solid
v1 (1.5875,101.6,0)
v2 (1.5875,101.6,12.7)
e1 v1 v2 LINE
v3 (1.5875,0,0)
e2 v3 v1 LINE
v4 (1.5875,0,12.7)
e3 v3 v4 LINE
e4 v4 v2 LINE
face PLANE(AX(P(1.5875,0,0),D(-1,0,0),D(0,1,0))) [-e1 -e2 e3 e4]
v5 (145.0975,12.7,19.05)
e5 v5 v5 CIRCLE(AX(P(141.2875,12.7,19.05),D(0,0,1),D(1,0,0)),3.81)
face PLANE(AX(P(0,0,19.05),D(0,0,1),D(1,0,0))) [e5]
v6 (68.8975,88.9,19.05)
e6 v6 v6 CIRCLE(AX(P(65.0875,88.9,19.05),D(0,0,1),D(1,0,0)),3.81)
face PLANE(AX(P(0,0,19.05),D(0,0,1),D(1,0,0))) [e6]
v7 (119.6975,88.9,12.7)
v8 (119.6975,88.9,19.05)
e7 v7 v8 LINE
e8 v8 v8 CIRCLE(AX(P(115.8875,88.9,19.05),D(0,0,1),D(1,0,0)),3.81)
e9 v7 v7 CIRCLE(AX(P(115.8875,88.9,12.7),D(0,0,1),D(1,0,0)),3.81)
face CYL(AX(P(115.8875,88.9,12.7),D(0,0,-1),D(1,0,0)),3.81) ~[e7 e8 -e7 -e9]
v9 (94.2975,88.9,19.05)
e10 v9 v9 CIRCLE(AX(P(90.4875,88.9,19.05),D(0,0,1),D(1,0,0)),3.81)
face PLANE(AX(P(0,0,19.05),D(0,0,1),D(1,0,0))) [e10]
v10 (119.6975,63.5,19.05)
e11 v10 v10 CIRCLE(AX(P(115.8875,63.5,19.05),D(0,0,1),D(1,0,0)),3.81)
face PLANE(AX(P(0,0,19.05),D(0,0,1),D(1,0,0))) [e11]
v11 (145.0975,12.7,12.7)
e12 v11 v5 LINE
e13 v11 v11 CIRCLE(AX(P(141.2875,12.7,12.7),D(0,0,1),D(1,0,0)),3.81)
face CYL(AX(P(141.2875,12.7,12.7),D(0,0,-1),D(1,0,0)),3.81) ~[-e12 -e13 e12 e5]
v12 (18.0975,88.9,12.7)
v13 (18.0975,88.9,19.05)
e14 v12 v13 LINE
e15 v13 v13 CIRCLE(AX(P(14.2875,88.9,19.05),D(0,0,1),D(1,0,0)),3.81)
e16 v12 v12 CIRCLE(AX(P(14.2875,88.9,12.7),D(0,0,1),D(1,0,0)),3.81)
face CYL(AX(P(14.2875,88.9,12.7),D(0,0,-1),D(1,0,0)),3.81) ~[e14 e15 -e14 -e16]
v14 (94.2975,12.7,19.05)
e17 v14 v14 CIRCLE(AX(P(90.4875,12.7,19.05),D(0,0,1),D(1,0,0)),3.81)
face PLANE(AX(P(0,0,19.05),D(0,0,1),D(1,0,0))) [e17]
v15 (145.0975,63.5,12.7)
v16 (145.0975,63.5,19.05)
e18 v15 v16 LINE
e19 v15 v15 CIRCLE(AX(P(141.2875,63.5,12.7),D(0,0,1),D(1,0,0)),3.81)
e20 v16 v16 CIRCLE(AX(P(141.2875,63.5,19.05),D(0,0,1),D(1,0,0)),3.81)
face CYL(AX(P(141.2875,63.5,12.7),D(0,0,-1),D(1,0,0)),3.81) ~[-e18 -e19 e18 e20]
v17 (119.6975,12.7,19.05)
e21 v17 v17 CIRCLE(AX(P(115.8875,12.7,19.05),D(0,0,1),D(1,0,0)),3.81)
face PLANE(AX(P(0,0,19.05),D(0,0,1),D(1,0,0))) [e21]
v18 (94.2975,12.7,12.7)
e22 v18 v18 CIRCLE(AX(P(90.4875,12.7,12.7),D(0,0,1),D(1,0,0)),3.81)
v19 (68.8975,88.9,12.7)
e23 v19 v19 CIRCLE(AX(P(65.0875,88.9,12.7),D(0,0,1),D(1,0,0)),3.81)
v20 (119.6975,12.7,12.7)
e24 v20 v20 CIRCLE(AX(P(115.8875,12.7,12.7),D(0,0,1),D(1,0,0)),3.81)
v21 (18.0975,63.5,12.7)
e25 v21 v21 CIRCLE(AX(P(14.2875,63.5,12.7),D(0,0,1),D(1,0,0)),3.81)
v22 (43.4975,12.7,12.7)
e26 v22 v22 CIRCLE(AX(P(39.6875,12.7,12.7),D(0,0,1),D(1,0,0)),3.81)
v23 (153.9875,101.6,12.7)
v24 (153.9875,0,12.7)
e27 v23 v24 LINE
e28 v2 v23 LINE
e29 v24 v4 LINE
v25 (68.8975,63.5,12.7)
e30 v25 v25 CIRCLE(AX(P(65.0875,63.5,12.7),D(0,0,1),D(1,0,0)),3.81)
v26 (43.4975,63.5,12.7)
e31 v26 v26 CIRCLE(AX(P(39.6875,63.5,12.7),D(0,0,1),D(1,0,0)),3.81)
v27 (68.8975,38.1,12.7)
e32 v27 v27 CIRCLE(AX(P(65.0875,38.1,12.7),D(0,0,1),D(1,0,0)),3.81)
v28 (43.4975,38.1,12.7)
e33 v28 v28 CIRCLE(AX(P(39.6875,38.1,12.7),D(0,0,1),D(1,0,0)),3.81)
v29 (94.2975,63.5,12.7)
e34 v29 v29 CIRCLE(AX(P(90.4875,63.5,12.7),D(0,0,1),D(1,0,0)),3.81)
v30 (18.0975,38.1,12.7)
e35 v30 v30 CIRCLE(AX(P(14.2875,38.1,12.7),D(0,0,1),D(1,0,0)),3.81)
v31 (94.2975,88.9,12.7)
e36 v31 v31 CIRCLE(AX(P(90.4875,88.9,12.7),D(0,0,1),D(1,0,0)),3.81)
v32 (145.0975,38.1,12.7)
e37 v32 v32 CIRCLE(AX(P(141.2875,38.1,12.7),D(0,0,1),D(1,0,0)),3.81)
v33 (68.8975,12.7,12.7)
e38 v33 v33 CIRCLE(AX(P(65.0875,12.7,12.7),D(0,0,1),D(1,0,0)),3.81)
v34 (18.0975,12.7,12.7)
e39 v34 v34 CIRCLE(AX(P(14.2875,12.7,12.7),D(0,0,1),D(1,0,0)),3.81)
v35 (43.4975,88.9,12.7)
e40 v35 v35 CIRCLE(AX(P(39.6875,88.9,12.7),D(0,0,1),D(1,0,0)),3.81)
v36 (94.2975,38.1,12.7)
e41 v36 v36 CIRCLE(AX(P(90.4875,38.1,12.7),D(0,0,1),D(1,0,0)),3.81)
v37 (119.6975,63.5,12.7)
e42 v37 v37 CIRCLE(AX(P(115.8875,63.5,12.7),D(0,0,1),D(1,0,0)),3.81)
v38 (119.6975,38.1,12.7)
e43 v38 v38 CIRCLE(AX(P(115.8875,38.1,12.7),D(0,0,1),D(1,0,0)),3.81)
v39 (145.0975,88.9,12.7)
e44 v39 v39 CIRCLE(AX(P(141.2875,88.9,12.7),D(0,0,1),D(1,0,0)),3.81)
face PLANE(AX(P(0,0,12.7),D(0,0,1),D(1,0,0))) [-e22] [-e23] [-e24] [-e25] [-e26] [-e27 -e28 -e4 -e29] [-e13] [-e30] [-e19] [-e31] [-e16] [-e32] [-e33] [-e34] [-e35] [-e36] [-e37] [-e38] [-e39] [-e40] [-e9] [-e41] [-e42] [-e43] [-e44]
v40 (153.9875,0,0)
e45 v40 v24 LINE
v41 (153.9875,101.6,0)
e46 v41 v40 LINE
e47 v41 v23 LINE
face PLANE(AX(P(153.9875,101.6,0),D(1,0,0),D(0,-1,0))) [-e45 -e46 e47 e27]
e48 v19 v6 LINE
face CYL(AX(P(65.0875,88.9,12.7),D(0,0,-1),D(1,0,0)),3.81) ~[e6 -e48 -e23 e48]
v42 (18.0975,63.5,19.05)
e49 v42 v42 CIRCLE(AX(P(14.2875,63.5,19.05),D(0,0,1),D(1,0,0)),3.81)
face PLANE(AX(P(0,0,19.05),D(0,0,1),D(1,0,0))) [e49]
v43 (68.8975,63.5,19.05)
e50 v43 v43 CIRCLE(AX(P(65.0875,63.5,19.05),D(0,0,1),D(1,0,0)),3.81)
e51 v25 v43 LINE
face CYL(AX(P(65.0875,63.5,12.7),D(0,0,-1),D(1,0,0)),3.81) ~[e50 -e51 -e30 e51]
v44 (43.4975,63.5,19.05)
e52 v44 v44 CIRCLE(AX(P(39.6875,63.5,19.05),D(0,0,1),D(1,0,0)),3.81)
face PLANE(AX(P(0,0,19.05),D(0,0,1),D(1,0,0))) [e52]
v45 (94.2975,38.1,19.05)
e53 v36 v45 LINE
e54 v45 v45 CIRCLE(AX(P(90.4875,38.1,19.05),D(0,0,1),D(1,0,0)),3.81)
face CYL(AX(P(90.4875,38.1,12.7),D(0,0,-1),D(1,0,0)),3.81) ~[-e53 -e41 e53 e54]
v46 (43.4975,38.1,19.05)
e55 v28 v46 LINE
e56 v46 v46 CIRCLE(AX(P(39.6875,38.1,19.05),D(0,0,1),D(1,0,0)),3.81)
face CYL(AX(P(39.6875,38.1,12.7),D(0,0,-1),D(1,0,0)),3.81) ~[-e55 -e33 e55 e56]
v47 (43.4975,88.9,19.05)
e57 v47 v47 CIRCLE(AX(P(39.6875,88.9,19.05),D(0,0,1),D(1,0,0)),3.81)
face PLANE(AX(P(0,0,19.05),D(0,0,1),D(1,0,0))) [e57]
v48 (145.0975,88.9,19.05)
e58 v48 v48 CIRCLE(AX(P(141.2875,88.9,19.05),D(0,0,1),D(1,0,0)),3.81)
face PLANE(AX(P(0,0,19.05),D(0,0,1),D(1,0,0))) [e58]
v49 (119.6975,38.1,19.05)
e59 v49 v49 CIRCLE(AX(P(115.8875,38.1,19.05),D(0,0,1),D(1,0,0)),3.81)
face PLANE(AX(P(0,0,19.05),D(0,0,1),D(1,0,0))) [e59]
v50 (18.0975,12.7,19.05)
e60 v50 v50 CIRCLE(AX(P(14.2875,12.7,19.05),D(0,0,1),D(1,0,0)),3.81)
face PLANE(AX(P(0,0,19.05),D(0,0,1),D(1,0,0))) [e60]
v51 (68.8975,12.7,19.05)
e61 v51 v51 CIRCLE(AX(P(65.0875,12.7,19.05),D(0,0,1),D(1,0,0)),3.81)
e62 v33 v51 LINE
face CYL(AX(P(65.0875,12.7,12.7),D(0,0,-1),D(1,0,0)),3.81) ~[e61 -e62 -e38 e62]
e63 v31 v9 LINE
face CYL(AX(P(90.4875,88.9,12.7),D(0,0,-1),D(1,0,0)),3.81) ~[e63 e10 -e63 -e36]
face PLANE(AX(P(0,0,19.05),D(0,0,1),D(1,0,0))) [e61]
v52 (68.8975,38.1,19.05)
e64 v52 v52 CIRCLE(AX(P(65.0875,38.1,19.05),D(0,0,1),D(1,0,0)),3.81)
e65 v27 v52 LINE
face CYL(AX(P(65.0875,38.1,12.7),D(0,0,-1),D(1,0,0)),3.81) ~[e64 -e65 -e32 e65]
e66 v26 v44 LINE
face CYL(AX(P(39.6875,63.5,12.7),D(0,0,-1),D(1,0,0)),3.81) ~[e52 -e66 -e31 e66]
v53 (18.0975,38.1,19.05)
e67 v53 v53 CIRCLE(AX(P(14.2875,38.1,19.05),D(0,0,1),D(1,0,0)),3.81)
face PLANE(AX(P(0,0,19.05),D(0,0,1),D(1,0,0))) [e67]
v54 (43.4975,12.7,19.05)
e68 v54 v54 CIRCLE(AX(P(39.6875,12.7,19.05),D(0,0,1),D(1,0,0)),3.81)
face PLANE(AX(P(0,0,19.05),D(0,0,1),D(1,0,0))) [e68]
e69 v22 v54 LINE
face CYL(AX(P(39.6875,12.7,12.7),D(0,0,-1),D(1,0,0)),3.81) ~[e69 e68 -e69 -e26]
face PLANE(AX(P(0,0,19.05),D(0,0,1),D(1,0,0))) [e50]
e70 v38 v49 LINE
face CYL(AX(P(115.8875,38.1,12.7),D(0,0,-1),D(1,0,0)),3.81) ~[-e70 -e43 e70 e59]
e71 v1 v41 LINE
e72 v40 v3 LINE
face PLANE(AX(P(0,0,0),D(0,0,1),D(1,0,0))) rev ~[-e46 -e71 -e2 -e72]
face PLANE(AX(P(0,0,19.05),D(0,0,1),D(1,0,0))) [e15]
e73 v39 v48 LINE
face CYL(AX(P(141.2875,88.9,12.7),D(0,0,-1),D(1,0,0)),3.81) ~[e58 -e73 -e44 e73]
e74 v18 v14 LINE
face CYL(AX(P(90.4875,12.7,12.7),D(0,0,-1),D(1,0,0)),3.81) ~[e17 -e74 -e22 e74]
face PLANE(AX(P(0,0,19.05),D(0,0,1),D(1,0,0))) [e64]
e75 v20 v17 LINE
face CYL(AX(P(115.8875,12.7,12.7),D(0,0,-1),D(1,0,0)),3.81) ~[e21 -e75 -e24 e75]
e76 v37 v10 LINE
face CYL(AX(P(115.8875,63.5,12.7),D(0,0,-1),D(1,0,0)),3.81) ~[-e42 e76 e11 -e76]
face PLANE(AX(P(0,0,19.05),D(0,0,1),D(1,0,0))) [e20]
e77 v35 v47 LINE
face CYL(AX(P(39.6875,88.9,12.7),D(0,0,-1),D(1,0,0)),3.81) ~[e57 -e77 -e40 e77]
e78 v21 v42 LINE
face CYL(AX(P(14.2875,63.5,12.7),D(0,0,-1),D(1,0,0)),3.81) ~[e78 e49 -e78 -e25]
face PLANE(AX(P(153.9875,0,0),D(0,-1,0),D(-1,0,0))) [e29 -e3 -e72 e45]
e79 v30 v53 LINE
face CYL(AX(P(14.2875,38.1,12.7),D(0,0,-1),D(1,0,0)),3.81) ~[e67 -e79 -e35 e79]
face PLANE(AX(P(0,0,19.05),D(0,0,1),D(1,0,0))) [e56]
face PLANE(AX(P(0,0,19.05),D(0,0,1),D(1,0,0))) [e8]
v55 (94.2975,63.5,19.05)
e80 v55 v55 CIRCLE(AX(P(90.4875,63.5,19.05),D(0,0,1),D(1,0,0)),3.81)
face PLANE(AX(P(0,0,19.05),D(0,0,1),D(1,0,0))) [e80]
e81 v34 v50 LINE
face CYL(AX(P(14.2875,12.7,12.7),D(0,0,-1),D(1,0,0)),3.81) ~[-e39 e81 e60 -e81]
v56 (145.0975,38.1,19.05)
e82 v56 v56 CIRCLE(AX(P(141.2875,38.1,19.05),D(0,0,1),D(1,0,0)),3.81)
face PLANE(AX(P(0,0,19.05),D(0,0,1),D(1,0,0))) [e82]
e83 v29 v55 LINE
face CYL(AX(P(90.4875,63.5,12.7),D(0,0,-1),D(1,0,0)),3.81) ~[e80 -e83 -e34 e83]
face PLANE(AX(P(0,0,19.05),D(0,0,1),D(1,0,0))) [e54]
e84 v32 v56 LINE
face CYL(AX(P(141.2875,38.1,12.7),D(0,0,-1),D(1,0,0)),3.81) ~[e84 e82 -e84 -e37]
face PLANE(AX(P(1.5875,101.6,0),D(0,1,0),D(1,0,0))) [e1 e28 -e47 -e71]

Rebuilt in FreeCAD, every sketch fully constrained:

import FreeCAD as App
import Part
import Sketcher
Q = App.Units.Quantity

doc = App.newDocument("Part")
params = doc.addObject("Spreadsheet::Sheet", "Params")
for row, (alias, value) in enumerate([
    ("sketch1_width", "6 in"),
    ("sketch1_height", "4 in"),
    ("pad1_length", "0.5 in"),
    ("sketch2_diameter", "0.3 in"),
    ("pad2_length", "0.25 in"),
], start=1):
    params.set(f"A{row}", alias)
    params.set(f"B{row}", "=" + value)
    params.setAlias(f"B{row}", alias)

body = doc.addObject("PartDesign::Body", "Body")

# Sketch on XY plane
sketch1 = body.newObject("Sketcher::SketchObject", "Sketch")
sketch1.AttachmentSupport = (doc.getObject("XY_Plane"), [""])
sketch1.MapMode = "FlatFace"
sketch1.addGeometry([
    Part.LineSegment(App.Vector(154, 102, 0), App.Vector(2, 102, 0)),
    Part.LineSegment(App.Vector(2, 102, 0), App.Vector(2, 0, 0)),
    Part.LineSegment(App.Vector(2, 0, 0), App.Vector(154, 0, 0)),
    Part.LineSegment(App.Vector(154, 0, 0), App.Vector(154, 102, 0)),
], False)
sketch1.addConstraint([
    Sketcher.Constraint("Coincident", 0, 2, 1, 1),
    Sketcher.Constraint("Coincident", 1, 2, 2, 1),
    Sketcher.Constraint("Coincident", 2, 2, 3, 1),
    Sketcher.Constraint("Coincident", 3, 2, 0, 1),
    Sketcher.Constraint("Horizontal", 0),
    Sketcher.Constraint("Vertical", 1),
    Sketcher.Constraint("Horizontal", 2),
    Sketcher.Constraint("Vertical", 3),
    Sketcher.Constraint("PointOnObject", 1, 2, -1),
    Sketcher.Constraint("DistanceX", 0, 2, 0, 1, Q("6 in")),
    Sketcher.Constraint("DistanceY", 1, 2, 1, 1, Q("4 in")),
    Sketcher.Constraint("DistanceX", -1, 1, 0, 2, Q("0.0625 in")),
])
sketch1.setExpression("Constraints[9]", "Params.sketch1_width")
sketch1.setExpression("Constraints[10]", "Params.sketch1_height")
pad1 = body.newObject("PartDesign::Pad", "Pad")
pad1.Profile = sketch1
pad1.setExpression("Length", "Params.pad1_length")

# Sketch on XY plane
sketch2 = body.newObject("Sketcher::SketchObject", "Sketch001")
sketch2.AttachmentSupport = (doc.getObject("XY_Plane"), [""])
sketch2.MapMode = "FlatFace"
sketch2.AttachmentOffset = App.Placement(App.Vector(0, 0, 0.5 * 25.4), App.Rotation())
sketch2.addGeometry([
    Part.Circle(App.Vector(14.3, 12.7, 0), App.Vector(0, 0, 1), 3.8),  # 0
    Part.Circle(App.Vector(14.3, 38.1, 0), App.Vector(0, 0, 1), 3.8),  # 1
    Part.Circle(App.Vector(14.3, 63.5, 0), App.Vector(0, 0, 1), 3.8),  # 2
    Part.Circle(App.Vector(14.3, 88.9, 0), App.Vector(0, 0, 1), 3.8),  # 3
    Part.Circle(App.Vector(39.7, 12.7, 0), App.Vector(0, 0, 1), 3.8),  # 4
    Part.Circle(App.Vector(39.7, 38.1, 0), App.Vector(0, 0, 1), 3.8),  # 5
    Part.Circle(App.Vector(39.7, 63.5, 0), App.Vector(0, 0, 1), 3.8),  # 6
    Part.Circle(App.Vector(39.7, 88.9, 0), App.Vector(0, 0, 1), 3.8),  # 7
    Part.Circle(App.Vector(65.1, 12.7, 0), App.Vector(0, 0, 1), 3.8),  # 8
    Part.Circle(App.Vector(65.1, 38.1, 0), App.Vector(0, 0, 1), 3.8),  # 9
    Part.Circle(App.Vector(65.1, 63.5, 0), App.Vector(0, 0, 1), 3.8),  # 10
    Part.Circle(App.Vector(65.1, 88.9, 0), App.Vector(0, 0, 1), 3.8),  # 11
    Part.Circle(App.Vector(90.5, 12.7, 0), App.Vector(0, 0, 1), 3.8),  # 12
    Part.Circle(App.Vector(90.5, 38.1, 0), App.Vector(0, 0, 1), 3.8),  # 13
    Part.Circle(App.Vector(90.5, 63.5, 0), App.Vector(0, 0, 1), 3.8),  # 14
    Part.Circle(App.Vector(90.5, 88.9, 0), App.Vector(0, 0, 1), 3.8),  # 15
    Part.Circle(App.Vector(115.9, 12.7, 0), App.Vector(0, 0, 1), 3.8),  # 16
    Part.Circle(App.Vector(115.9, 38.1, 0), App.Vector(0, 0, 1), 3.8),  # 17
    Part.Circle(App.Vector(115.9, 63.5, 0), App.Vector(0, 0, 1), 3.8),  # 18
    Part.Circle(App.Vector(115.9, 88.9, 0), App.Vector(0, 0, 1), 3.8),  # 19
    Part.Circle(App.Vector(141.3, 12.7, 0), App.Vector(0, 0, 1), 3.8),  # 20
    Part.Circle(App.Vector(141.3, 38.1, 0), App.Vector(0, 0, 1), 3.8),  # 21
    Part.Circle(App.Vector(141.3, 63.5, 0), App.Vector(0, 0, 1), 3.8),  # 22
    Part.Circle(App.Vector(141.3, 88.9, 0), App.Vector(0, 0, 1), 3.8),  # 23
], False)
sketch2.addConstraint([
    Sketcher.Constraint("Equal", 0, 1),
    Sketcher.Constraint("Equal", 1, 2),
    Sketcher.Constraint("Equal", 2, 3),
    Sketcher.Constraint("Equal", 3, 4),
    Sketcher.Constraint("Equal", 4, 5),
    Sketcher.Constraint("Equal", 5, 6),
    Sketcher.Constraint("Equal", 6, 7),
    Sketcher.Constraint("Equal", 7, 8),
    Sketcher.Constraint("Equal", 8, 9),
    Sketcher.Constraint("Equal", 9, 10),
    Sketcher.Constraint("Equal", 10, 11),
    Sketcher.Constraint("Equal", 11, 12),
    Sketcher.Constraint("Equal", 12, 13),
    Sketcher.Constraint("Equal", 13, 14),
    Sketcher.Constraint("Equal", 14, 15),
    Sketcher.Constraint("Equal", 15, 16),
    Sketcher.Constraint("Equal", 16, 17),
    Sketcher.Constraint("Equal", 17, 18),
    Sketcher.Constraint("Equal", 18, 19),
    Sketcher.Constraint("Equal", 19, 20),
    Sketcher.Constraint("Equal", 20, 21),
    Sketcher.Constraint("Equal", 21, 22),
    Sketcher.Constraint("Equal", 22, 23),
    Sketcher.Constraint("Horizontal", 0, 3, 4, 3),
    Sketcher.Constraint("Horizontal", 1, 3, 5, 3),
    Sketcher.Constraint("Horizontal", 2, 3, 6, 3),
    Sketcher.Constraint("Horizontal", 3, 3, 7, 3),
    Sketcher.Constraint("Horizontal", 4, 3, 8, 3),
    Sketcher.Constraint("Horizontal", 5, 3, 9, 3),
    Sketcher.Constraint("Horizontal", 6, 3, 10, 3),
    Sketcher.Constraint("Horizontal", 7, 3, 11, 3),
    Sketcher.Constraint("Horizontal", 8, 3, 12, 3),
    Sketcher.Constraint("Horizontal", 9, 3, 13, 3),
    Sketcher.Constraint("Horizontal", 10, 3, 14, 3),
    Sketcher.Constraint("Horizontal", 11, 3, 15, 3),
    Sketcher.Constraint("Horizontal", 12, 3, 16, 3),
    Sketcher.Constraint("Horizontal", 13, 3, 17, 3),
    Sketcher.Constraint("Horizontal", 14, 3, 18, 3),
    Sketcher.Constraint("Horizontal", 15, 3, 19, 3),
    Sketcher.Constraint("Horizontal", 16, 3, 20, 3),
    Sketcher.Constraint("Horizontal", 17, 3, 21, 3),
    Sketcher.Constraint("Horizontal", 18, 3, 22, 3),
    Sketcher.Constraint("Horizontal", 19, 3, 23, 3),
    Sketcher.Constraint("Vertical", 0, 3, 1, 3),
    Sketcher.Constraint("Vertical", 1, 3, 2, 3),
    Sketcher.Constraint("Vertical", 2, 3, 3, 3),
    Sketcher.Constraint("Vertical", 4, 3, 5, 3),
    Sketcher.Constraint("Vertical", 5, 3, 6, 3),
    Sketcher.Constraint("Vertical", 6, 3, 7, 3),
    Sketcher.Constraint("Vertical", 8, 3, 9, 3),
    Sketcher.Constraint("Vertical", 9, 3, 10, 3),
    Sketcher.Constraint("Vertical", 10, 3, 11, 3),
    Sketcher.Constraint("Vertical", 12, 3, 13, 3),
    Sketcher.Constraint("Vertical", 13, 3, 14, 3),
    Sketcher.Constraint("Vertical", 14, 3, 15, 3),
    Sketcher.Constraint("Vertical", 16, 3, 17, 3),
    Sketcher.Constraint("Vertical", 17, 3, 18, 3),
    Sketcher.Constraint("Vertical", 18, 3, 19, 3),
    Sketcher.Constraint("Vertical", 20, 3, 21, 3),
    Sketcher.Constraint("Vertical", 21, 3, 22, 3),
    Sketcher.Constraint("Vertical", 22, 3, 23, 3),
    Sketcher.Constraint("Diameter", 0, Q("0.3 in")),
    Sketcher.Constraint("DistanceY", 0, 3, 1, 3, Q("1 in")),
    Sketcher.Constraint("DistanceY", 1, 3, 2, 3, Q("1 in")),
    Sketcher.Constraint("DistanceY", 2, 3, 3, 3, Q("1 in")),
    Sketcher.Constraint("DistanceX", 0, 3, 4, 3, Q("1 in")),
    Sketcher.Constraint("DistanceX", 4, 3, 8, 3, Q("1 in")),
    Sketcher.Constraint("DistanceX", 8, 3, 12, 3, Q("1 in")),
    Sketcher.Constraint("DistanceX", 12, 3, 16, 3, Q("1 in")),
    Sketcher.Constraint("DistanceX", 16, 3, 20, 3, Q("1 in")),
    Sketcher.Constraint("DistanceY", -1, 1, 0, 3, Q("0.5 in")),
    Sketcher.Constraint("DistanceX", -1, 1, 0, 3, Q("0.5625 in")),
])
sketch2.setExpression("Constraints[61]", "Params.sketch2_diameter")
pad2 = body.newObject("PartDesign::Pad", "Pad001")
pad2.Profile = sketch2
pad2.setExpression("Length", "Params.pad2_length")

doc.recompute()
